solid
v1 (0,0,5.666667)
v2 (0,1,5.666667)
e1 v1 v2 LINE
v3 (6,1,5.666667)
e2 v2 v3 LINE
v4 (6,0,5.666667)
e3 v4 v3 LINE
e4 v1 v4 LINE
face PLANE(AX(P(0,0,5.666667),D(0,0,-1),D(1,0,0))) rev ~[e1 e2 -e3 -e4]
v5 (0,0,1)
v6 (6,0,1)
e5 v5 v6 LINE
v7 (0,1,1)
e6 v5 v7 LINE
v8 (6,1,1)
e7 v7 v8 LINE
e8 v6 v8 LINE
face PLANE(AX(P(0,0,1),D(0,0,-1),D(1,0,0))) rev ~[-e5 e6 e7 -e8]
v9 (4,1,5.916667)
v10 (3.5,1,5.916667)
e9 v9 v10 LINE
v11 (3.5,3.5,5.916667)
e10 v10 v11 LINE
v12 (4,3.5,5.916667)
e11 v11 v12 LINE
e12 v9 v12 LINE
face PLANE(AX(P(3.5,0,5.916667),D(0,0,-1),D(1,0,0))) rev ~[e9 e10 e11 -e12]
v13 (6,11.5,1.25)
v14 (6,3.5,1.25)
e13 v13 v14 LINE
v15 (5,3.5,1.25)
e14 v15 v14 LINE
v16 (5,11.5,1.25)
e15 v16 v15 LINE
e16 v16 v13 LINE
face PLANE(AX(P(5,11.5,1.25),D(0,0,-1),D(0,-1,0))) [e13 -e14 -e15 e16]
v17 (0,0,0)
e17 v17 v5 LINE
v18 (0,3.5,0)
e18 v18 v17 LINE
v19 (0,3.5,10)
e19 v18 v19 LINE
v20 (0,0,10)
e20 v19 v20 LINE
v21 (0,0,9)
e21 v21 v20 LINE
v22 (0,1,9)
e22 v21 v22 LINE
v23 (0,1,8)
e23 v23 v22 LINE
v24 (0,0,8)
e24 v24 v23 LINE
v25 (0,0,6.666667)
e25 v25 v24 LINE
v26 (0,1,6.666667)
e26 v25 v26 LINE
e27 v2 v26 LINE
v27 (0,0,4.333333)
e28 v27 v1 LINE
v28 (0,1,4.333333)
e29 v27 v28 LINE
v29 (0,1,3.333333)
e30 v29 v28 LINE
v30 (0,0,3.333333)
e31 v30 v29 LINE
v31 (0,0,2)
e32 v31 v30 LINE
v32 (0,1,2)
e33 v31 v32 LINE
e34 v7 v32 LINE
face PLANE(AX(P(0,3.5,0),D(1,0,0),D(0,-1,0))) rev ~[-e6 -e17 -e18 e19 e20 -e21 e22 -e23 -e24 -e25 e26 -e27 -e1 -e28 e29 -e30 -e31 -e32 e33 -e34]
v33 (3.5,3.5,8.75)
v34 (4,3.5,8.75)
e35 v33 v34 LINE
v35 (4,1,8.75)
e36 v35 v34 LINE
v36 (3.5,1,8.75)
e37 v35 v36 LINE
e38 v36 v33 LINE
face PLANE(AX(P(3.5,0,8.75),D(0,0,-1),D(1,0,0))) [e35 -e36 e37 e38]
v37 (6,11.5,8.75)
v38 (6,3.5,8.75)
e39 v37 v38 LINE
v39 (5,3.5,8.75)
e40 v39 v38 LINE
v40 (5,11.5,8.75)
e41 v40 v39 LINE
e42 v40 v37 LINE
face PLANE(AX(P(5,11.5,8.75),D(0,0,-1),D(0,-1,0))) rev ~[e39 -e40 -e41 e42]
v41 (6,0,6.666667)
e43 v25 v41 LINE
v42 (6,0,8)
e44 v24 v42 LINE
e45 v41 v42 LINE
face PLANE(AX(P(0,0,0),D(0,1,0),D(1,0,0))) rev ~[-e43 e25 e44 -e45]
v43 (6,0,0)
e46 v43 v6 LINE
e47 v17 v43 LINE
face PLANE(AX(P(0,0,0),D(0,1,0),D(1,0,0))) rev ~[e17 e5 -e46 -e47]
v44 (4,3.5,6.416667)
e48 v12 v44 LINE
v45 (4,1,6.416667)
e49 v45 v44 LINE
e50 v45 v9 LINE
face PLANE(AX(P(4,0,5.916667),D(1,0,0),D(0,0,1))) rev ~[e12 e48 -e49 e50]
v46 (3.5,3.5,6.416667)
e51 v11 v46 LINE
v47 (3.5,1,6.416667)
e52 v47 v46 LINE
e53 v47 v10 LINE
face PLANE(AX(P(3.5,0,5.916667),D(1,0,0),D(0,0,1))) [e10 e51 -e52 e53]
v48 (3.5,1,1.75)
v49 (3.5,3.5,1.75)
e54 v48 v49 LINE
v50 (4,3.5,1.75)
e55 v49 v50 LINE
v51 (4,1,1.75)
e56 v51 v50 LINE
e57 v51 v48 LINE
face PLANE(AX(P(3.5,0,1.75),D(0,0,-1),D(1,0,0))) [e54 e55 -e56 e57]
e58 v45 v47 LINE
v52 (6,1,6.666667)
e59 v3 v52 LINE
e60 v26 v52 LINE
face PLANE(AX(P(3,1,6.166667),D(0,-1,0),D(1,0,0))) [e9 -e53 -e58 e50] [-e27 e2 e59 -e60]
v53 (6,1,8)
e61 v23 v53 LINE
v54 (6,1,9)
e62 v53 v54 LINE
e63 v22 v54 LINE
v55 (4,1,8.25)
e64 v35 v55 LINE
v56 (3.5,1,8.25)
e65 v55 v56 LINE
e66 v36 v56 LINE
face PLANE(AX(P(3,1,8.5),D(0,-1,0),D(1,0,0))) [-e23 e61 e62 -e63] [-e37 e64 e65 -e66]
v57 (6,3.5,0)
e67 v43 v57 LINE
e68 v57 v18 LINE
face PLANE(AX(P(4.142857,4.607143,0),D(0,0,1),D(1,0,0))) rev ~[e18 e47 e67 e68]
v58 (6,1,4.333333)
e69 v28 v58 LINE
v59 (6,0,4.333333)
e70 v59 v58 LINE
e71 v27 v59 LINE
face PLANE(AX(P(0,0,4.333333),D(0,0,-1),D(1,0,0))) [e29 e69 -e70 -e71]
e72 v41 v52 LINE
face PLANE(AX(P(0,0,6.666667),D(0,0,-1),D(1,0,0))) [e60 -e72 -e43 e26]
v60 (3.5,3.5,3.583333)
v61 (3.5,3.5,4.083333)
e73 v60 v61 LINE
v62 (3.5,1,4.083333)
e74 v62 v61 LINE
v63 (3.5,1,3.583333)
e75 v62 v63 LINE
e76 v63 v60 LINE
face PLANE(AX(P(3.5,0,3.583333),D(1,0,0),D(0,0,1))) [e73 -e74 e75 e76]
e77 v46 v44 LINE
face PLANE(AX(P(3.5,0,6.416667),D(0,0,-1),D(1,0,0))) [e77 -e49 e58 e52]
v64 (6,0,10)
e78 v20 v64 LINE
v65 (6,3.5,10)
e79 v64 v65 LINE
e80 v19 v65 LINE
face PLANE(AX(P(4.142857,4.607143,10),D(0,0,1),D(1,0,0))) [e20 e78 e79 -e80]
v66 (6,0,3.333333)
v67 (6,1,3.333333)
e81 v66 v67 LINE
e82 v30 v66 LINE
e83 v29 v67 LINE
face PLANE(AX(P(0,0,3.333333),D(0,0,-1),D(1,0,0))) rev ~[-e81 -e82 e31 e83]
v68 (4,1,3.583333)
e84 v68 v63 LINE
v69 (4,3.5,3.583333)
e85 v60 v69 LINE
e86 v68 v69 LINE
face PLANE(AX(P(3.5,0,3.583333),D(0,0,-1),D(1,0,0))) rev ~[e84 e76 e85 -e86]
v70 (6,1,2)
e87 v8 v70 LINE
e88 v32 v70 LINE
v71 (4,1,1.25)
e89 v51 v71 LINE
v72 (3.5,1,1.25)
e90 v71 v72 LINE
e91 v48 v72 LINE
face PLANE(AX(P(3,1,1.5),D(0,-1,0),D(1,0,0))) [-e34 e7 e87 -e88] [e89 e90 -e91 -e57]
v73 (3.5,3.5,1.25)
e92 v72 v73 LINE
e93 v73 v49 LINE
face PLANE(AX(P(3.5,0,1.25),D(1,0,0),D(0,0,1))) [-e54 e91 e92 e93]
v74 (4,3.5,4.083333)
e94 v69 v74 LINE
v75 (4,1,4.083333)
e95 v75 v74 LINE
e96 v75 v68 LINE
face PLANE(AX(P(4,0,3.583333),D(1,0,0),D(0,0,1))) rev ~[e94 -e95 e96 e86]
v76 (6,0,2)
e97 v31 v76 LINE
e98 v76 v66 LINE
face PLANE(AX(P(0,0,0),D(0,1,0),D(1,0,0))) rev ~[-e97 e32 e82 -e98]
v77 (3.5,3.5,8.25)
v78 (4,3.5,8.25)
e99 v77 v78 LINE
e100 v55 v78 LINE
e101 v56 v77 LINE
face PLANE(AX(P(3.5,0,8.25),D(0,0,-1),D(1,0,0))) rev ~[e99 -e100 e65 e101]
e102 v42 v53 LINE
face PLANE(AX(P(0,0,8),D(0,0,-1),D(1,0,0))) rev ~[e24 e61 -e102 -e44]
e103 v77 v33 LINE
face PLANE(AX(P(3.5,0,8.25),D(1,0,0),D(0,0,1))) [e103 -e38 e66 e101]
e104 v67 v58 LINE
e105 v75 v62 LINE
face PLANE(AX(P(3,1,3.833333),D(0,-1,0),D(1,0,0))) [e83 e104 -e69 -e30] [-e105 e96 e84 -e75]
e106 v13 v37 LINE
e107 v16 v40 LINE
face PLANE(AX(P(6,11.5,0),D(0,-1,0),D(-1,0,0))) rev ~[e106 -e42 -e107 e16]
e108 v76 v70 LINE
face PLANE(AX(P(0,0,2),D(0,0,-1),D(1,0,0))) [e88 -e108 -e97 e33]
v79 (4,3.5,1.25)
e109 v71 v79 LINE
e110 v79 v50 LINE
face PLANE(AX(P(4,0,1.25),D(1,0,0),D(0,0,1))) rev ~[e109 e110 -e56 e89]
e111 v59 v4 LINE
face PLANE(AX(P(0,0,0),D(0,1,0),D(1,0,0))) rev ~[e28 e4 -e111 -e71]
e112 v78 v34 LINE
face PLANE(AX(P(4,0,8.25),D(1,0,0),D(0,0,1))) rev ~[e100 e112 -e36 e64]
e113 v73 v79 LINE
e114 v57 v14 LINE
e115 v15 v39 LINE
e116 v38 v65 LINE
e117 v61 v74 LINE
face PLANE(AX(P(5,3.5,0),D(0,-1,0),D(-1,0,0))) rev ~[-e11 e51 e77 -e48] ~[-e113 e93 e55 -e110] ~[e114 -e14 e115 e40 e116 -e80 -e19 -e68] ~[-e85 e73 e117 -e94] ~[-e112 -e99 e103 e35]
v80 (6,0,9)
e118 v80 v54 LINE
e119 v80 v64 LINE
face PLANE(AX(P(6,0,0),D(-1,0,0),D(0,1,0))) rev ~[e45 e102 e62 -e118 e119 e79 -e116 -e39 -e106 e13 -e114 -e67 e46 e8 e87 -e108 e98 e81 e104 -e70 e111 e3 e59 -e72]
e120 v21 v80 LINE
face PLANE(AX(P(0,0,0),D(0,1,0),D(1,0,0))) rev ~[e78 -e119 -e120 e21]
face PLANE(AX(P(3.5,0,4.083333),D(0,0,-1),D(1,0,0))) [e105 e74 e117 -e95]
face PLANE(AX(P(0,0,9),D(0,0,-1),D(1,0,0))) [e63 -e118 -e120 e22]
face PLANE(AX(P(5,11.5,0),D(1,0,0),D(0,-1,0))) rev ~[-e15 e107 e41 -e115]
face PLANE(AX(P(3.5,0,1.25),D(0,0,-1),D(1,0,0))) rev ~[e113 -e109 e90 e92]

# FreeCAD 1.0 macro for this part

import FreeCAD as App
import Part
import Sketcher

V = App.Vector


def add_polygon(sketch, points):
    """Adds a closed chain of lines whose ends are joined by coincident constraints."""
    first, n = sketch.GeometryCount, len(points)
    for a, b in zip(points, points[1:] + points[:1]):
        sketch.addGeometry(Part.LineSegment(App.Vector(*a, 0), App.Vector(*b, 0)), False)
    for i in range(n):
        sketch.addConstraint(Sketcher.Constraint("Coincident", first + i, 2, first + (i + 1) % n, 1))

doc = App.newDocument("Part")
body = doc.addObject("PartDesign::Body", "Body")

sketch1 = body.newObject("Sketcher::SketchObject", "Sketch")
sketch1.AttachmentSupport = (doc.getObject("XY_Plane"), [""])
sketch1.MapMode = "FlatFace"
add_polygon(sketch1, [(0, 3.5), (0, 0), (6, 0), (6, 11.5), (5, 11.5), (5, 3.5)])
sketch1.addConstraint([
    Sketcher.Constraint("Vertical", 0),
    Sketcher.Constraint("Horizontal", 1),
    Sketcher.Constraint("Vertical", 2),
    Sketcher.Constraint("Horizontal", 3),
    Sketcher.Constraint("Vertical", 4),
    Sketcher.Constraint("Horizontal", 5),
    Sketcher.Constraint("Coincident", 0, 2, -1, 1),
    Sketcher.Constraint("DistanceX", 1, 1, 1, 2, 6.0),
    Sketcher.Constraint("DistanceX", 3, 2, 3, 1, 1.0),
    Sketcher.Constraint("DistanceY", 4, 2, 4, 1, 8.0),
    Sketcher.Constraint("DistanceY", 0, 2, 0, 1, 3.5),
])
pad1 = body.newObject("PartDesign::Pad", "Pad")
pad1.Profile = sketch1
pad1.Length = 10

sketch2 = body.newObject("Sketcher::SketchObject", "Sketch001")
sketch2.AttachmentSupport = (doc.getObject("YZ_Plane"), [""])
sketch2.MapMode = "FlatFace"
sketch2.AttachmentOffset = App.Placement(V(0, 0, 5), App.Rotation())
add_polygon(sketch2, [(11.5, 1.2), (11.5, 0), (3.5, 0), (3.5, 1.2)])
add_polygon(sketch2, [(11.5, 10), (11.5, 8.8), (3.5, 8.8), (3.5, 10)])
sketch2.addConstraint([
    Sketcher.Constraint("Vertical", 0),
    Sketcher.Constraint("Horizontal", 1),
    Sketcher.Constraint("Vertical", 2),
    Sketcher.Constraint("Horizontal", 3),
    Sketcher.Constraint("Vertical", 4),
    Sketcher.Constraint("Horizontal", 5),
    Sketcher.Constraint("Vertical", 6),
    Sketcher.Constraint("Horizontal", 7),
    Sketcher.Constraint("PointOnObject", 0, 2, -1),
    Sketcher.Constraint("Vertical", 3, 2, 4, 2),
    Sketcher.Constraint("Vertical", 2, 2, 5, 2),
    Sketcher.Constraint("Equal", 2, 4),
    Sketcher.Constraint("DistanceX", 1, 2, 1, 1, 8.0),
    Sketcher.Constraint("DistanceY", -1, 1, 6, 2, 10.0),
    Sketcher.Constraint("DistanceY", 0, 2, 0, 1, 1.25),
    Sketcher.Constraint("DistanceX", -1, 1, 0, 2, 11.5),
])
pocket1 = body.newObject("PartDesign::Pocket", "Pocket")
pocket1.Profile = sketch2
pocket1.Length = 25
pocket1.Reversed = True

sketch3 = body.newObject("Sketcher::SketchObject", "Sketch002")
sketch3.AttachmentSupport = (doc.getObject("XZ_Plane"), [""])
sketch3.MapMode = "FlatFace"
add_polygon(sketch3, [(3.5, 8.75), (3.5, 8.25), (4, 8.25), (4, 8.75)])
add_polygon(sketch3, [(3.5, 1.75), (3.5, 1.25), (4, 1.25), (4, 1.75)])
add_polygon(sketch3, [(3.5, 6.42), (3.5, 5.92), (4, 5.92), (4, 6.42)])
add_polygon(sketch3, [(3.5, 4.08), (3.5, 3.58), (4, 3.58), (4, 4.08)])
sketch3.addConstraint([
    Sketcher.Constraint("Vertical", 0),
    Sketcher.Constraint("Horizontal", 1),
    Sketcher.Constraint("Vertical", 2),
    Sketcher.Constraint("Horizontal", 3),
    Sketcher.Constraint("Vertical", 4),
    Sketcher.Constraint("Horizontal", 5),
    Sketcher.Constraint("Vertical", 6),
    Sketcher.Constraint("Horizontal", 7),
    Sketcher.Constraint("Vertical", 8),
    Sketcher.Constraint("Horizontal", 9),
    Sketcher.Constraint("Vertical", 10),
    Sketcher.Constraint("Horizontal", 11),
    Sketcher.Constraint("Vertical", 12),
    Sketcher.Constraint("Horizontal", 13),
    Sketcher.Constraint("Vertical", 14),
    Sketcher.Constraint("Horizontal", 15),
    Sketcher.Constraint("Vertical", 3, 2, 4, 2),
    Sketcher.Constraint("Vertical", 2, 2, 5, 2),
    Sketcher.Constraint("Vertical", 7, 2, 8, 2),
    Sketcher.Constraint("Vertical", 6, 2, 9, 2),
    Sketcher.Constraint("Vertical", 11, 2, 12, 2),
    Sketcher.Constraint("Vertical", 10, 2, 13, 2),
    Sketcher.Constraint("Equal", 15, 0),
    Sketcher.Constraint("Equal", 2, 4),
    Sketcher.Constraint("Equal", 6, 8),
    Sketcher.Constraint("Equal", 10, 12),
    Sketcher.Constraint("DistanceX", 1, 1, 1, 2, 0.5),
    Sketcher.Constraint("DistanceX", -1, 1, 1, 2, 4.0),
    Sketcher.Constraint("DistanceY", 4, 2, 0, 2, 7.0),
    Sketcher.Constraint("DistanceY", -1, 1, 0, 2, 8.25),
    Sketcher.Constraint("DistanceY", -1, 1, 8, 2, 5.916667),
    Sketcher.Constraint("DistanceY", -1, 1, 12, 2, 3.583333),
])
pocket2 = body.newObject("PartDesign::Pocket", "Pocket001")
pocket2.Profile = sketch3
pocket2.Length = 25

sketch4 = body.newObject("Sketcher::SketchObject", "Sketch003")
sketch4.AttachmentSupport = (doc.getObject("XZ_Plane"), [""])
sketch4.MapMode = "FlatFace"
add_polygon(sketch4, [(0, 9), (0, 8), (6, 8), (6, 9)])
add_polygon(sketch4, [(0, 6.7), (0, 5.7), (6, 5.7), (6, 6.7)])
add_polygon(sketch4, [(0, 4.3), (0, 3.3), (6, 3.3), (6, 4.3)])
add_polygon(sketch4, [(0, 2), (0, 1), (6, 1), (6, 2)])
sketch4.addConstraint([
    Sketcher.Constraint("Vertical", 0),
    Sketcher.Constraint("Horizontal", 1),
    Sketcher.Constraint("Vertical", 2),
    Sketcher.Constraint("Horizontal", 3),
    Sketcher.Constraint("Vertical", 4),
    Sketcher.Constraint("Horizontal", 5),
    Sketcher.Constraint("Vertical", 6),
    Sketcher.Constraint("Horizontal", 7),
    Sketcher.Constraint("Vertical", 8),
    Sketcher.Constraint("Horizontal", 9),
    Sketcher.Constraint("Vertical", 10),
    Sketcher.Constraint("Horizontal", 11),
    Sketcher.Constraint("Vertical", 12),
    Sketcher.Constraint("Horizontal", 13),
    Sketcher.Constraint("Vertical", 14),
    Sketcher.Constraint("Horizontal", 15),
    Sketcher.Constraint("PointOnObject", 0, 2, -2),
    Sketcher.Constraint("PointOnObject", 4, 2, -2),
    Sketcher.Constraint("PointOnObject", 8, 2, -2),
    Sketcher.Constraint("PointOnObject", 12, 2, -2),
    Sketcher.Constraint("Vertical", 2, 2, 5, 2),
    Sketcher.Constraint("Vertical", 6, 2, 9, 2),
    Sketcher.Constraint("Vertical", 10, 2, 13, 2),
    Sketcher.Constraint("Equal", 2, 4),
    Sketcher.Constraint("Equal", 6, 8),
    Sketcher.Constraint("Equal", 10, 12),
    Sketcher.Constraint("DistanceX", 1, 1, 1, 2, 6.0),
    Sketcher.Constraint("DistanceY", 0, 2, 0, 1, 1.0),
    Sketcher.Constraint("DistanceY", -1, 1, 0, 2, 8.0),
    Sketcher.Constraint("DistanceY", -1, 1, 12, 2, 1.0),
    Sketcher.Constraint("DistanceY", -1, 1, 4, 2, 5.666667),
    Sketcher.Constraint("DistanceY", -1, 1, 8, 2, 3.333333),
])
pocket3 = body.newObject("PartDesign::Pocket", "Pocket002")
pocket3.Profile = sketch4
pocket3.Length = 1

doc.recompute()
